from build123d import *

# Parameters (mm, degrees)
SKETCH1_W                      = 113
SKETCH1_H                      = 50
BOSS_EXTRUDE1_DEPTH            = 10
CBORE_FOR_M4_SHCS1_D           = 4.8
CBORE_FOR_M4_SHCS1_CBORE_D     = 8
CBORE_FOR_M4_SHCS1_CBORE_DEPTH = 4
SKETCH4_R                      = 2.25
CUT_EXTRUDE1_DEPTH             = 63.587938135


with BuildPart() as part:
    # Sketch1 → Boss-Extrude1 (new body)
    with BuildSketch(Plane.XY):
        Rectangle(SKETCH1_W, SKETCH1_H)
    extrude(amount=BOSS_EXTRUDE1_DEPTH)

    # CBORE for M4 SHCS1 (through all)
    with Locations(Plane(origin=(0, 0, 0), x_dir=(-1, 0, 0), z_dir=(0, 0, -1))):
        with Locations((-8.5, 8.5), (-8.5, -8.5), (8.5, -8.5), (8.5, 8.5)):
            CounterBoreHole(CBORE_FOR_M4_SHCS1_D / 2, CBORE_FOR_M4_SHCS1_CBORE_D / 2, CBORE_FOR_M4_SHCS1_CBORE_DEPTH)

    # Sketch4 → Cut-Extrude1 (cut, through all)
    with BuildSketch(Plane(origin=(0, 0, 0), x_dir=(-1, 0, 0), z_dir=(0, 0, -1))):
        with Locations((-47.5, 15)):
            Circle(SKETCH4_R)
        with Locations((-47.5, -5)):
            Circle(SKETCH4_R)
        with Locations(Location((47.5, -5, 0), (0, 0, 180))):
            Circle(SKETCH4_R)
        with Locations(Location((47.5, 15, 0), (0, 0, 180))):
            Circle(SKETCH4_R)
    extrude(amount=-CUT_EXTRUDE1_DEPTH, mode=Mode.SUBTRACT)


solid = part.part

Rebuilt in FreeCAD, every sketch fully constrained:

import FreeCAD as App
import Part
import Sketcher

V = App.Vector
Q = App.Units.Quantity


def add_polygon(sketch, points):
    """Adds a closed chain of lines whose ends are joined by coincident constraints."""
    first, n = sketch.GeometryCount, len(points)
    for a, b in zip(points, points[1:] + points[:1]):
        sketch.addGeometry(Part.LineSegment(App.Vector(*a, 0), App.Vector(*b, 0)), False)
    for i in range(n):
        sketch.addConstraint(Sketcher.Constraint("Coincident", first + i, 2, first + (i + 1) % n, 1))

doc = App.newDocument("Part")
body = doc.addObject("PartDesign::Body", "Body")

# Sketch on XY plane
sketch1 = body.newObject("Sketcher::SketchObject", "Sketch")
sketch1.AttachmentSupport = (doc.getObject("XY_Plane"), [""])
sketch1.MapMode = "FlatFace"
add_polygon(sketch1, [(-56, 25), (-56, -25), (56, -25), (56, 25)])  # lines 0-3
sketch1.addConstraint(Sketcher.Constraint("Vertical", 0))
sketch1.addConstraint(Sketcher.Constraint("Horizontal", 1))
sketch1.addConstraint(Sketcher.Constraint("Vertical", 2))
sketch1.addConstraint(Sketcher.Constraint("Horizontal", 3))
sketch1.addConstraint(Sketcher.Constraint("Symmetric", 0, 2, 2, 2, -1, 1))
sketch1.addConstraint(Sketcher.Constraint("DistanceX", 1, 1, 1, 2, Q("113 mm")))
sketch1.addConstraint(Sketcher.Constraint("DistanceY", 0, 2, 0, 1, Q("50 mm")))
pad1 = body.newObject("PartDesign::Pad", "Pad")
pad1.Profile = sketch1
pad1.Length = 10

# Sketch on XY plane
sketch2 = body.newObject("Sketcher::SketchObject", "Sketch001")
sketch2.AttachmentSupport = (doc.getObject("XY_Plane"), [""])
sketch2.MapMode = "FlatFace"
sketch2.addGeometry(Part.Circle(V(8.5, 8.5, 0), V(0, 0, 1), 2.4), False)
sketch2.addGeometry(Part.Circle(V(8.5, -8.5, 0), V(0, 0, 1), 2.4), False)
sketch2.addGeometry(Part.Circle(V(-8.5, -8.5, 0), V(0, 0, 1), 2.4), False)
sketch2.addGeometry(Part.Circle(V(-8.5, 8.5, 0), V(0, 0, 1), 2.4), False)
sketch2.addConstraint(Sketcher.Constraint("Equal", 0, 1))
sketch2.addConstraint(Sketcher.Constraint("Equal", 1, 2))
sketch2.addConstraint(Sketcher.Constraint("Equal", 2, 3))
sketch2.addConstraint(Sketcher.Constraint("Symmetric", 0, 3, 2, 3, -1, 1))
sketch2.addConstraint(Sketcher.Constraint("Symmetric", 1, 3, 3, 3, -1, 1))
sketch2.addConstraint(Sketcher.Constraint("Symmetric", 1, 3, 2, 3, -2))
sketch2.addConstraint(Sketcher.Constraint("Diameter", 0, Q("4.8 mm")))
sketch2.addConstraint(Sketcher.Constraint("DistanceY", 1, 3, 0, 3, Q("17 mm")))
sketch2.addConstraint(Sketcher.Constraint("DistanceX", 2, 3, 1, 3, Q("17 mm")))
doc.recompute()
hole = body.newObject("PartDesign::Hole", "Hole")
hole.Profile = sketch2
hole.ThreadType = "None"
hole.Diameter = 4.8
hole.DepthType = "ThroughAll"
hole.HoleCutType = "Counterbore"
hole.HoleCutDiameter = 8
hole.HoleCutDepth = 4
hole.Reversed = True

# Sketch on XY plane
sketch3 = body.newObject("Sketcher::SketchObject", "Sketch002")
sketch3.AttachmentSupport = (doc.getObject("XY_Plane"), [""])
sketch3.MapMode = "FlatFace"
sketch3.addGeometry(Part.Circle(V(47.5, 15, 0), V(0, 0, 1), 2.2), False)
sketch3.addGeometry(Part.Circle(V(47.5, -5, 0), V(0, 0, 1), 2.2), False)
sketch3.addGeometry(Part.Circle(V(-47.5, -5, 0), V(0, 0, 1), 2.2), False)
sketch3.addGeometry(Part.Circle(V(-47.5, 15, 0), V(0, 0, 1), 2.2), False)
sketch3.addConstraint(Sketcher.Constraint("Equal", 0, 1))
sketch3.addConstraint(Sketcher.Constraint("Equal", 1, 2))
sketch3.addConstraint(Sketcher.Constraint("Equal", 2, 3))
sketch3.addConstraint(Sketcher.Constraint("Symmetric", 1, 3, 2, 3, -2))
sketch3.addConstraint(Sketcher.Constraint("Symmetric", 0, 3, 3, 3, -2))
sketch3.addConstraint(Sketcher.Constraint("Vertical", 0, 3, 1, 3))
sketch3.addConstraint(Sketcher.Constraint("Diameter", 0, Q("4.5 mm")))
sketch3.addConstraint(Sketcher.Constraint("DistanceY", -1, 1, 0, 3, Q("15 mm")))
sketch3.addConstraint(Sketcher.Constraint("DistanceY", 1, 3, -1, 1, Q("5 mm")))
sketch3.addConstraint(Sketcher.Constraint("DistanceX", 2, 3, 1, 3, Q("95 mm")))
pocket1 = body.newObject("PartDesign::Pocket", "Pocket")
pocket1.Profile = sketch3
pocket1.Type = "ThroughAll"
pocket1.Reversed = True

doc.recompute()
